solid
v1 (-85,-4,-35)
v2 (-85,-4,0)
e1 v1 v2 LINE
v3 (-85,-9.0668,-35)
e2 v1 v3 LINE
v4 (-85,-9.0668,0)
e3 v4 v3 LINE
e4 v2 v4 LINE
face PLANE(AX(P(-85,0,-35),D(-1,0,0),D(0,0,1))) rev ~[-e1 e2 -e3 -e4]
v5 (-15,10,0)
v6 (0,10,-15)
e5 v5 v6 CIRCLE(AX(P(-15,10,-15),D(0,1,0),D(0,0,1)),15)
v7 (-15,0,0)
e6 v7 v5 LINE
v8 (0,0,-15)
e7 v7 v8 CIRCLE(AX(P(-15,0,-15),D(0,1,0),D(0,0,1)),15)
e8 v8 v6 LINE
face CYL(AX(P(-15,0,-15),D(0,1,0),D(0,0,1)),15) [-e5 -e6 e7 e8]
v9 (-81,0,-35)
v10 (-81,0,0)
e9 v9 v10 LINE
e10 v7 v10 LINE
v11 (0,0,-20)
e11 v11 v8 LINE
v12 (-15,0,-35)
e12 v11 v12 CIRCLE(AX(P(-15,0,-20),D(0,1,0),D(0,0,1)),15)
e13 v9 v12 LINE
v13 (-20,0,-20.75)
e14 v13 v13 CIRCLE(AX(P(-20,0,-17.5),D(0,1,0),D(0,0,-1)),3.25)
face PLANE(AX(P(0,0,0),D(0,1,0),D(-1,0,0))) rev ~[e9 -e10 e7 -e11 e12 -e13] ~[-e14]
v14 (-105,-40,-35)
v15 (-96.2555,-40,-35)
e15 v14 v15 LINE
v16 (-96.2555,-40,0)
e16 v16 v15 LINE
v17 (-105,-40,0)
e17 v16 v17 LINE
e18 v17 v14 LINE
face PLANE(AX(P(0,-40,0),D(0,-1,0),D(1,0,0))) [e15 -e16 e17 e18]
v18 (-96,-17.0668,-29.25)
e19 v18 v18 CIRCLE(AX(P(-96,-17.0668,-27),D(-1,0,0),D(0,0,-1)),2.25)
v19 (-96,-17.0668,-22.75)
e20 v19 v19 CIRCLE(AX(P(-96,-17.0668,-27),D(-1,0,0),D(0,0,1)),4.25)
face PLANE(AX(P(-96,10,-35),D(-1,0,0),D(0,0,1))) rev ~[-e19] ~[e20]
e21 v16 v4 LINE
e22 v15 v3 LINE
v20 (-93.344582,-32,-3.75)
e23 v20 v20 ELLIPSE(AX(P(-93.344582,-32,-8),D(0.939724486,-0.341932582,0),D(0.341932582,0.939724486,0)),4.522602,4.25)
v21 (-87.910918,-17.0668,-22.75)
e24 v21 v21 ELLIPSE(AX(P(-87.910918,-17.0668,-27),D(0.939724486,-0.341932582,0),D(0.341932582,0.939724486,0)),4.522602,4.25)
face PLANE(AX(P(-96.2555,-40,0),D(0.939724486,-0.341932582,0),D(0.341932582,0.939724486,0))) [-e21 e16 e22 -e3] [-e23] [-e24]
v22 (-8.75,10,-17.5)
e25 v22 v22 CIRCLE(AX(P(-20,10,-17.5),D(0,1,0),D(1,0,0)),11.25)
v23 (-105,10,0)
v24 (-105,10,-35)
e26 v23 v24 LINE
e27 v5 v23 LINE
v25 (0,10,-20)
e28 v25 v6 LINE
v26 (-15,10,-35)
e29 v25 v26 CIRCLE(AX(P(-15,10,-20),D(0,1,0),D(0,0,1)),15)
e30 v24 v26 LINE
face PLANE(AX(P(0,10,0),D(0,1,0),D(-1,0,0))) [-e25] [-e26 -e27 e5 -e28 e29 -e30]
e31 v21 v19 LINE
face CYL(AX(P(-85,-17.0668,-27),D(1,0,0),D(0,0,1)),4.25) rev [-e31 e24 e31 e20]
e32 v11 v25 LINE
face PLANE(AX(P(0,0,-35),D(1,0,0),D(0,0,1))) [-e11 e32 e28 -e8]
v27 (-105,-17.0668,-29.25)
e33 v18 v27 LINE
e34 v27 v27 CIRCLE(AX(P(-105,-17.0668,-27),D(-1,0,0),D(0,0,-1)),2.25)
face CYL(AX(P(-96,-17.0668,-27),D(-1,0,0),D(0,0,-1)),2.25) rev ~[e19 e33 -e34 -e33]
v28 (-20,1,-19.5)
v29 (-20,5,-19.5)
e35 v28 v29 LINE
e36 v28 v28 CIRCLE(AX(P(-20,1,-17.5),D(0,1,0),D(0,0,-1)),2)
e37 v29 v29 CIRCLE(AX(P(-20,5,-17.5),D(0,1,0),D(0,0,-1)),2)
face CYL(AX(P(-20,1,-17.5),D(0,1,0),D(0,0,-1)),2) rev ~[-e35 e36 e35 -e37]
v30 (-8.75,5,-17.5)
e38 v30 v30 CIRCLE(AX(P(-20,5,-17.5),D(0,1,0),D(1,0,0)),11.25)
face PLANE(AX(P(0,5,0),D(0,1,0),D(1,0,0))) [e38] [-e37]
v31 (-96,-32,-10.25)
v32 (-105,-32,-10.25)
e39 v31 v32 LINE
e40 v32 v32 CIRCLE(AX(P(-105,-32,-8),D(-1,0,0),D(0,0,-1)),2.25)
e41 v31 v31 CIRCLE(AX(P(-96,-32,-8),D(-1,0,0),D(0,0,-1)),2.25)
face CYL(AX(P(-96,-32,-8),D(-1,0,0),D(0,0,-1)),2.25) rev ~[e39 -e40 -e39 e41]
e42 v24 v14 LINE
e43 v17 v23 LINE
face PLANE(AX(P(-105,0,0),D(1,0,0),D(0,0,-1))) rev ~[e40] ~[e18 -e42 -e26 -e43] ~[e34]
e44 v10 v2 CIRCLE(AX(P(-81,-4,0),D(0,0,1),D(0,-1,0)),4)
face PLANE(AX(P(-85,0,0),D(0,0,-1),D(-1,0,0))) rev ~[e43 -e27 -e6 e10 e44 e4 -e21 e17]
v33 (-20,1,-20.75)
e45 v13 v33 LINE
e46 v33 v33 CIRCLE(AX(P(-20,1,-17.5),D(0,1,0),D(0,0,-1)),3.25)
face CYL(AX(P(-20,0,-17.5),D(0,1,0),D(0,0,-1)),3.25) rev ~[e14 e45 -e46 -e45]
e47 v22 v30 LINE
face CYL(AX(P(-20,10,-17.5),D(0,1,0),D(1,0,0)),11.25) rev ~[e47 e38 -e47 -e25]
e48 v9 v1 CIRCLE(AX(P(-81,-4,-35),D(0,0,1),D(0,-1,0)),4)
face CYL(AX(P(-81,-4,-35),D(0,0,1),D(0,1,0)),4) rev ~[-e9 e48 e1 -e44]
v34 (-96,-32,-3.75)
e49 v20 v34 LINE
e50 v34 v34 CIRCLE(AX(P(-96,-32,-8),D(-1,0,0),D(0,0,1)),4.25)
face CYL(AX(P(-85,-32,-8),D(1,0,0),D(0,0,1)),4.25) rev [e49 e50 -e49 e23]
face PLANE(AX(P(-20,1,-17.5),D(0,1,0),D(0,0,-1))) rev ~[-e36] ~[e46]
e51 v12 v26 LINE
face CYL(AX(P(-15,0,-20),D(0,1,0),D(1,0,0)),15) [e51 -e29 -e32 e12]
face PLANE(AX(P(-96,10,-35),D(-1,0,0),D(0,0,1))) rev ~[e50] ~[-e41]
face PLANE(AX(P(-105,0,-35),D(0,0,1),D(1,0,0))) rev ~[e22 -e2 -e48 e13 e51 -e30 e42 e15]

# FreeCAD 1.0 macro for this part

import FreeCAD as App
import Part
import Sketcher

V = App.Vector
Q = App.Units.Quantity


def edges_at(feature, points):
    """Names of the edges that pass closest to the given points."""
    edges = feature.Shape.Edges
    near = lambda p: min(range(len(edges)), key=lambda i: edges[i].distToShape(Part.Vertex(*p))[0])
    return sorted({f"Edge{near(p) + 1}" for p in points})

doc = App.newDocument("Part")
body = doc.addObject("PartDesign::Body", "Body")

# Sketch on XZ plane
sketch1 = doc.addObject("Sketcher::SketchObject", "Sketch")
body.addObject(sketch1)
sketch1.AttachmentSupport = (doc.XZ_Plane, [""])
sketch1.MapMode = "FlatFace"
sketch1.addGeometry(Part.LineSegment(V(-105, 0, 0), V(0, 0, 0)), False)
sketch1.addGeometry(Part.LineSegment(V(0, 0, 0), V(0, -35, 0)), False)
sketch1.addGeometry(Part.LineSegment(V(0, -35, 0), V(-105, -35, 0)), False)
sketch1.addGeometry(Part.LineSegment(V(-105, -35, 0), V(-105, 0, 0)), False)
sketch1.addConstraint(Sketcher.Constraint("Coincident", 0, 2, 1, 1))
sketch1.addConstraint(Sketcher.Constraint("Coincident", 1, 2, 2, 1))
sketch1.addConstraint(Sketcher.Constraint("Coincident", 2, 2, 3, 1))
sketch1.addConstraint(Sketcher.Constraint("Coincident", 3, 2, 0, 1))
sketch1.addConstraint(Sketcher.Constraint("Horizontal", 0))
sketch1.addConstraint(Sketcher.Constraint("Vertical", 1))
sketch1.addConstraint(Sketcher.Constraint("Horizontal", 2))
sketch1.addConstraint(Sketcher.Constraint("Vertical", 3))
sketch1.addConstraint(Sketcher.Constraint("Coincident", 0, 2, -1, 1))
sketch1.addConstraint(Sketcher.Constraint("DistanceX", 0, 1, 0, 2, Q("105 mm")))
sketch1.addConstraint(Sketcher.Constraint("DistanceY", 1, 2, 1, 1, Q("35 mm")))
pad1 = doc.addObject("PartDesign::Pad", "Pad")
body.addObject(pad1)
pad1.Profile = sketch1
pad1.Length = 10
pad1.Reversed = True

# Sketch on XZ plane
sketch2 = doc.addObject("Sketcher::SketchObject", "Sketch001")
body.addObject(sketch2)
sketch2.AttachmentSupport = (doc.XZ_Plane, [""])
sketch2.MapMode = "FlatFace"
sketch2.AttachmentOffset = App.Placement(V(0, 0, -10), App.Rotation())
sketch2.addGeometry(Part.Circle(V(-20, -18, 0), V(0, 0, 1), 11), False)
sketch2.addConstraint(Sketcher.Constraint("Diameter", 0, Q("22.5 mm")))
sketch2.addConstraint(Sketcher.Constraint("DistanceY", 0, 3, -1, 1, Q("17.5 mm")))
sketch2.addConstraint(Sketcher.Constraint("DistanceX", 0, 3, -1, 1, Q("20 mm")))
pocket1 = doc.addObject("PartDesign::Pocket", "Pocket")
body.addObject(pocket1)
pocket1.Profile = sketch2
pocket1.Length = 5
pocket1.Reversed = True

# Sketch on XZ plane
sketch3 = doc.addObject("Sketcher::SketchObject", "Sketch002")
body.addObject(sketch3)
sketch3.AttachmentSupport = (doc.XZ_Plane, [""])
sketch3.MapMode = "FlatFace"
sketch3.addGeometry(Part.Circle(V(-20, -17.5, 0), V(0, 0, 1), 2), False)
sketch3.addConstraint(Sketcher.Constraint("Diameter", 0, Q("4 mm")))
sketch3.addConstraint(Sketcher.Constraint("DistanceX", 0, 3, -1, 1, Q("20 mm")))
sketch3.addConstraint(Sketcher.Constraint("DistanceY", 0, 3, -1, 1, Q("17.5 mm")))
doc.recompute()
hole = doc.addObject("PartDesign::Hole", "Hole")
body.addObject(hole)
hole.Profile = sketch3
hole.ThreadType = "None"
hole.Diameter = 4
hole.DepthType = "Dimension"
hole.Depth = 8
hole.DrillPoint = "Angled"
hole.DrillPointAngle = 118
hole.HoleCutType = "Counterbore"
hole.HoleCutDiameter = 6.5
hole.HoleCutDepth = 1

# Sketch on XZ plane
sketch4 = doc.addObject("Sketcher::SketchObject", "Sketch003")
body.addObject(sketch4)
sketch4.AttachmentSupport = (doc.XZ_Plane, [""])
sketch4.MapMode = "FlatFace"
sketch4.addGeometry(Part.LineSegment(V(-105, 0, 0), V(-105, -35, 0)), False)
sketch4.addGeometry(Part.LineSegment(V(-105, -35, 0), V(-85, -35, 0)), False)
sketch4.addGeometry(Part.LineSegment(V(-85, -35, 0), V(-85, 0, 0)), False)
sketch4.addGeometry(Part.LineSegment(V(-85, 0, 0), V(-105, 0, 0)), False)
sketch4.addConstraint(Sketcher.Constraint("Coincident", 0, 2, 1, 1))
sketch4.addConstraint(Sketcher.Constraint("Coincident", 1, 2, 2, 1))
sketch4.addConstraint(Sketcher.Constraint("Coincident", 2, 2, 3, 1))
sketch4.addConstraint(Sketcher.Constraint("Coincident", 3, 2, 0, 1))
sketch4.addConstraint(Sketcher.Constraint("Vertical", 0))
sketch4.addConstraint(Sketcher.Constraint("Horizontal", 1))
sketch4.addConstraint(Sketcher.Constraint("Vertical", 2))
sketch4.addConstraint(Sketcher.Constraint("Horizontal", 3))
sketch4.addConstraint(Sketcher.Constraint("PointOnObject", 2, 2, -1))
sketch4.addConstraint(Sketcher.Constraint("DistanceX", 1, 1, 1, 2, Q("20 mm")))
sketch4.addConstraint(Sketcher.Constraint("DistanceY", 0, 2, 0, 1, Q("35 mm")))
sketch4.addConstraint(Sketcher.Constraint("DistanceX", 0, 2, -1, 1, Q("105 mm")))
pad2 = doc.addObject("PartDesign::Pad", "Pad001")
body.addObject(pad2)
pad2.Profile = sketch4
pad2.Length = 40

# Sketch on XY plane
sketch5 = doc.addObject("Sketcher::SketchObject", "Sketch004")
body.addObject(sketch5)
sketch5.AttachmentSupport = (doc.XY_Plane, [""])
sketch5.MapMode = "FlatFace"
sketch5.addGeometry(Part.LineSegment(V(-96, -40, 0), V(-85, -40, 0)), False)
sketch5.addGeometry(Part.LineSegment(V(-85, -40, 0), V(-85, -9, 0)), False)
sketch5.addGeometry(Part.LineSegment(V(-85, -9, 0), V(-96, -40, 0)), False)
sketch5.addConstraint(Sketcher.Constraint("Coincident", 0, 2, 1, 1))
sketch5.addConstraint(Sketcher.Constraint("Coincident", 1, 2, 2, 1))
sketch5.addConstraint(Sketcher.Constraint("Coincident", 2, 2, 0, 1))
sketch5.addConstraint(Sketcher.Constraint("Horizontal", 0))
sketch5.addConstraint(Sketcher.Constraint("Vertical", 1))
sketch5.addConstraint(Sketcher.Constraint("DistanceX", 0, 2, -1, 1, Q("85 mm")))
sketch5.addConstraint(Sketcher.Constraint("DistanceY", 0, 2, -1, 1, Q("40 mm")))
sketch5.addConstraint(Sketcher.Constraint("DistanceX", 0, 1, 0, 2, Q("11.2555 mm")))
sketch5.addConstraint(Sketcher.Constraint("DistanceY", 1, 1, 1, 2, Q("30.9332 mm")))
pocket2 = doc.addObject("PartDesign::Pocket", "Pocket001")
body.addObject(pocket2)
pocket2.Profile = sketch5
pocket2.Length = 42

# Sketch on YZ plane
sketch6 = doc.addObject("Sketcher::SketchObject", "Sketch005")
body.addObject(sketch6)
sketch6.AttachmentSupport = (doc.YZ_Plane, [""])
sketch6.MapMode = "FlatFace"
sketch6.AttachmentOffset = App.Placement(V(0, 0, -85), App.Rotation())
sketch6.addGeometry(Part.Circle(V(-32, -8, 0), V(0, 0, 1), 4.2), False)
sketch6.addGeometry(Part.Circle(V(-17.1, -27, 0), V(0, 0, 1), 4.2), False)
sketch6.addConstraint(Sketcher.Constraint("Equal", 0, 1))
sketch6.addConstraint(Sketcher.Constraint("Diameter", 0, Q("8.5 mm")))
sketch6.addConstraint(Sketcher.Constraint("DistanceY", 0, 3, -1, 1, Q("8 mm")))
sketch6.addConstraint(Sketcher.Constraint("DistanceX", 0, 3, -1, 1, Q("32 mm")))
sketch6.addConstraint(Sketcher.Constraint("DistanceY", 1, 3, -1, 1, Q("27 mm")))
sketch6.addConstraint(Sketcher.Constraint("DistanceX", 1, 3, -1, 1, Q("17.0668 mm")))
pocket3 = doc.addObject("PartDesign::Pocket", "Pocket002")
body.addObject(pocket3)
pocket3.Profile = sketch6
pocket3.Length = 11

# Sketch on YZ plane
sketch7 = doc.addObject("Sketcher::SketchObject", "Sketch006")
body.addObject(sketch7)
sketch7.AttachmentSupport = (doc.YZ_Plane, [""])
sketch7.MapMode = "FlatFace"
sketch7.AttachmentOffset = App.Placement(V(0, 0, -96), App.Rotation())
sketch7.addGeometry(Part.Circle(V(-32, -8, 0), V(0, 0, 1), 2.2), False)
sketch7.addConstraint(Sketcher.Constraint("Diameter", 0, Q("4.5 mm")))
sketch7.addConstraint(Sketcher.Constraint("DistanceX", 0, 3, -1, 1, Q("32 mm")))
sketch7.addConstraint(Sketcher.Constraint("DistanceY", 0, 3, -1, 1, Q("8 mm")))
doc.recompute()
hole2 = doc.addObject("PartDesign::Hole", "Hole001")
body.addObject(hole2)
hole2.Profile = sketch7
hole2.ThreadType = "None"
hole2.Diameter = 4.5
hole2.DepthType = "Dimension"
hole2.Depth = 10
hole2.DrillPoint = "Angled"
hole2.DrillPointAngle = 118

# Sketch on YZ plane
sketch8 = doc.addObject("Sketcher::SketchObject", "Sketch007")
body.addObject(sketch8)
sketch8.AttachmentSupport = (doc.YZ_Plane, [""])
sketch8.MapMode = "FlatFace"
sketch8.AttachmentOffset = App.Placement(V(0, 0, -96), App.Rotation())
sketch8.addGeometry(Part.Circle(V(-17.1, -27, 0), V(0, 0, 1), 2.2), False)
sketch8.addConstraint(Sketcher.Constraint("Diameter", 0, Q("4.5 mm")))
sketch8.addConstraint(Sketcher.Constraint("DistanceY", 0, 3, -1, 1, Q("27 mm")))
sketch8.addConstraint(Sketcher.Constraint("DistanceX", 0, 3, -1, 1, Q("17.0668 mm")))
doc.recompute()
hole3 = doc.addObject("PartDesign::Hole", "Hole002")
body.addObject(hole3)
hole3.Profile = sketch8
hole3.ThreadType = "None"
hole3.Diameter = 4.5
hole3.DepthType = "Dimension"
hole3.Depth = 10
hole3.DrillPoint = "Angled"
hole3.DrillPointAngle = 118
doc.recompute()

fillet = doc.addObject("PartDesign::Fillet", "Fillet")
body.addObject(fillet)
fillet.Base = (hole3, edges_at(hole3, [(-85, 0, -17.5)]))
fillet.Radius = 4
doc.recompute()

fillet2 = doc.addObject("PartDesign::Fillet", "Fillet001")
body.addObject(fillet2)
fillet2.Base = (fillet, edges_at(fillet, [(0, 5, 0)]))
fillet2.Radius = 15
doc.recompute()

fillet3 = doc.addObject("PartDesign::Fillet", "Fillet002")
body.addObject(fillet3)
fillet3.Base = (fillet2, edges_at(fillet2, [(0, 5, -35)]))
fillet3.Radius = 15

doc.recompute()
